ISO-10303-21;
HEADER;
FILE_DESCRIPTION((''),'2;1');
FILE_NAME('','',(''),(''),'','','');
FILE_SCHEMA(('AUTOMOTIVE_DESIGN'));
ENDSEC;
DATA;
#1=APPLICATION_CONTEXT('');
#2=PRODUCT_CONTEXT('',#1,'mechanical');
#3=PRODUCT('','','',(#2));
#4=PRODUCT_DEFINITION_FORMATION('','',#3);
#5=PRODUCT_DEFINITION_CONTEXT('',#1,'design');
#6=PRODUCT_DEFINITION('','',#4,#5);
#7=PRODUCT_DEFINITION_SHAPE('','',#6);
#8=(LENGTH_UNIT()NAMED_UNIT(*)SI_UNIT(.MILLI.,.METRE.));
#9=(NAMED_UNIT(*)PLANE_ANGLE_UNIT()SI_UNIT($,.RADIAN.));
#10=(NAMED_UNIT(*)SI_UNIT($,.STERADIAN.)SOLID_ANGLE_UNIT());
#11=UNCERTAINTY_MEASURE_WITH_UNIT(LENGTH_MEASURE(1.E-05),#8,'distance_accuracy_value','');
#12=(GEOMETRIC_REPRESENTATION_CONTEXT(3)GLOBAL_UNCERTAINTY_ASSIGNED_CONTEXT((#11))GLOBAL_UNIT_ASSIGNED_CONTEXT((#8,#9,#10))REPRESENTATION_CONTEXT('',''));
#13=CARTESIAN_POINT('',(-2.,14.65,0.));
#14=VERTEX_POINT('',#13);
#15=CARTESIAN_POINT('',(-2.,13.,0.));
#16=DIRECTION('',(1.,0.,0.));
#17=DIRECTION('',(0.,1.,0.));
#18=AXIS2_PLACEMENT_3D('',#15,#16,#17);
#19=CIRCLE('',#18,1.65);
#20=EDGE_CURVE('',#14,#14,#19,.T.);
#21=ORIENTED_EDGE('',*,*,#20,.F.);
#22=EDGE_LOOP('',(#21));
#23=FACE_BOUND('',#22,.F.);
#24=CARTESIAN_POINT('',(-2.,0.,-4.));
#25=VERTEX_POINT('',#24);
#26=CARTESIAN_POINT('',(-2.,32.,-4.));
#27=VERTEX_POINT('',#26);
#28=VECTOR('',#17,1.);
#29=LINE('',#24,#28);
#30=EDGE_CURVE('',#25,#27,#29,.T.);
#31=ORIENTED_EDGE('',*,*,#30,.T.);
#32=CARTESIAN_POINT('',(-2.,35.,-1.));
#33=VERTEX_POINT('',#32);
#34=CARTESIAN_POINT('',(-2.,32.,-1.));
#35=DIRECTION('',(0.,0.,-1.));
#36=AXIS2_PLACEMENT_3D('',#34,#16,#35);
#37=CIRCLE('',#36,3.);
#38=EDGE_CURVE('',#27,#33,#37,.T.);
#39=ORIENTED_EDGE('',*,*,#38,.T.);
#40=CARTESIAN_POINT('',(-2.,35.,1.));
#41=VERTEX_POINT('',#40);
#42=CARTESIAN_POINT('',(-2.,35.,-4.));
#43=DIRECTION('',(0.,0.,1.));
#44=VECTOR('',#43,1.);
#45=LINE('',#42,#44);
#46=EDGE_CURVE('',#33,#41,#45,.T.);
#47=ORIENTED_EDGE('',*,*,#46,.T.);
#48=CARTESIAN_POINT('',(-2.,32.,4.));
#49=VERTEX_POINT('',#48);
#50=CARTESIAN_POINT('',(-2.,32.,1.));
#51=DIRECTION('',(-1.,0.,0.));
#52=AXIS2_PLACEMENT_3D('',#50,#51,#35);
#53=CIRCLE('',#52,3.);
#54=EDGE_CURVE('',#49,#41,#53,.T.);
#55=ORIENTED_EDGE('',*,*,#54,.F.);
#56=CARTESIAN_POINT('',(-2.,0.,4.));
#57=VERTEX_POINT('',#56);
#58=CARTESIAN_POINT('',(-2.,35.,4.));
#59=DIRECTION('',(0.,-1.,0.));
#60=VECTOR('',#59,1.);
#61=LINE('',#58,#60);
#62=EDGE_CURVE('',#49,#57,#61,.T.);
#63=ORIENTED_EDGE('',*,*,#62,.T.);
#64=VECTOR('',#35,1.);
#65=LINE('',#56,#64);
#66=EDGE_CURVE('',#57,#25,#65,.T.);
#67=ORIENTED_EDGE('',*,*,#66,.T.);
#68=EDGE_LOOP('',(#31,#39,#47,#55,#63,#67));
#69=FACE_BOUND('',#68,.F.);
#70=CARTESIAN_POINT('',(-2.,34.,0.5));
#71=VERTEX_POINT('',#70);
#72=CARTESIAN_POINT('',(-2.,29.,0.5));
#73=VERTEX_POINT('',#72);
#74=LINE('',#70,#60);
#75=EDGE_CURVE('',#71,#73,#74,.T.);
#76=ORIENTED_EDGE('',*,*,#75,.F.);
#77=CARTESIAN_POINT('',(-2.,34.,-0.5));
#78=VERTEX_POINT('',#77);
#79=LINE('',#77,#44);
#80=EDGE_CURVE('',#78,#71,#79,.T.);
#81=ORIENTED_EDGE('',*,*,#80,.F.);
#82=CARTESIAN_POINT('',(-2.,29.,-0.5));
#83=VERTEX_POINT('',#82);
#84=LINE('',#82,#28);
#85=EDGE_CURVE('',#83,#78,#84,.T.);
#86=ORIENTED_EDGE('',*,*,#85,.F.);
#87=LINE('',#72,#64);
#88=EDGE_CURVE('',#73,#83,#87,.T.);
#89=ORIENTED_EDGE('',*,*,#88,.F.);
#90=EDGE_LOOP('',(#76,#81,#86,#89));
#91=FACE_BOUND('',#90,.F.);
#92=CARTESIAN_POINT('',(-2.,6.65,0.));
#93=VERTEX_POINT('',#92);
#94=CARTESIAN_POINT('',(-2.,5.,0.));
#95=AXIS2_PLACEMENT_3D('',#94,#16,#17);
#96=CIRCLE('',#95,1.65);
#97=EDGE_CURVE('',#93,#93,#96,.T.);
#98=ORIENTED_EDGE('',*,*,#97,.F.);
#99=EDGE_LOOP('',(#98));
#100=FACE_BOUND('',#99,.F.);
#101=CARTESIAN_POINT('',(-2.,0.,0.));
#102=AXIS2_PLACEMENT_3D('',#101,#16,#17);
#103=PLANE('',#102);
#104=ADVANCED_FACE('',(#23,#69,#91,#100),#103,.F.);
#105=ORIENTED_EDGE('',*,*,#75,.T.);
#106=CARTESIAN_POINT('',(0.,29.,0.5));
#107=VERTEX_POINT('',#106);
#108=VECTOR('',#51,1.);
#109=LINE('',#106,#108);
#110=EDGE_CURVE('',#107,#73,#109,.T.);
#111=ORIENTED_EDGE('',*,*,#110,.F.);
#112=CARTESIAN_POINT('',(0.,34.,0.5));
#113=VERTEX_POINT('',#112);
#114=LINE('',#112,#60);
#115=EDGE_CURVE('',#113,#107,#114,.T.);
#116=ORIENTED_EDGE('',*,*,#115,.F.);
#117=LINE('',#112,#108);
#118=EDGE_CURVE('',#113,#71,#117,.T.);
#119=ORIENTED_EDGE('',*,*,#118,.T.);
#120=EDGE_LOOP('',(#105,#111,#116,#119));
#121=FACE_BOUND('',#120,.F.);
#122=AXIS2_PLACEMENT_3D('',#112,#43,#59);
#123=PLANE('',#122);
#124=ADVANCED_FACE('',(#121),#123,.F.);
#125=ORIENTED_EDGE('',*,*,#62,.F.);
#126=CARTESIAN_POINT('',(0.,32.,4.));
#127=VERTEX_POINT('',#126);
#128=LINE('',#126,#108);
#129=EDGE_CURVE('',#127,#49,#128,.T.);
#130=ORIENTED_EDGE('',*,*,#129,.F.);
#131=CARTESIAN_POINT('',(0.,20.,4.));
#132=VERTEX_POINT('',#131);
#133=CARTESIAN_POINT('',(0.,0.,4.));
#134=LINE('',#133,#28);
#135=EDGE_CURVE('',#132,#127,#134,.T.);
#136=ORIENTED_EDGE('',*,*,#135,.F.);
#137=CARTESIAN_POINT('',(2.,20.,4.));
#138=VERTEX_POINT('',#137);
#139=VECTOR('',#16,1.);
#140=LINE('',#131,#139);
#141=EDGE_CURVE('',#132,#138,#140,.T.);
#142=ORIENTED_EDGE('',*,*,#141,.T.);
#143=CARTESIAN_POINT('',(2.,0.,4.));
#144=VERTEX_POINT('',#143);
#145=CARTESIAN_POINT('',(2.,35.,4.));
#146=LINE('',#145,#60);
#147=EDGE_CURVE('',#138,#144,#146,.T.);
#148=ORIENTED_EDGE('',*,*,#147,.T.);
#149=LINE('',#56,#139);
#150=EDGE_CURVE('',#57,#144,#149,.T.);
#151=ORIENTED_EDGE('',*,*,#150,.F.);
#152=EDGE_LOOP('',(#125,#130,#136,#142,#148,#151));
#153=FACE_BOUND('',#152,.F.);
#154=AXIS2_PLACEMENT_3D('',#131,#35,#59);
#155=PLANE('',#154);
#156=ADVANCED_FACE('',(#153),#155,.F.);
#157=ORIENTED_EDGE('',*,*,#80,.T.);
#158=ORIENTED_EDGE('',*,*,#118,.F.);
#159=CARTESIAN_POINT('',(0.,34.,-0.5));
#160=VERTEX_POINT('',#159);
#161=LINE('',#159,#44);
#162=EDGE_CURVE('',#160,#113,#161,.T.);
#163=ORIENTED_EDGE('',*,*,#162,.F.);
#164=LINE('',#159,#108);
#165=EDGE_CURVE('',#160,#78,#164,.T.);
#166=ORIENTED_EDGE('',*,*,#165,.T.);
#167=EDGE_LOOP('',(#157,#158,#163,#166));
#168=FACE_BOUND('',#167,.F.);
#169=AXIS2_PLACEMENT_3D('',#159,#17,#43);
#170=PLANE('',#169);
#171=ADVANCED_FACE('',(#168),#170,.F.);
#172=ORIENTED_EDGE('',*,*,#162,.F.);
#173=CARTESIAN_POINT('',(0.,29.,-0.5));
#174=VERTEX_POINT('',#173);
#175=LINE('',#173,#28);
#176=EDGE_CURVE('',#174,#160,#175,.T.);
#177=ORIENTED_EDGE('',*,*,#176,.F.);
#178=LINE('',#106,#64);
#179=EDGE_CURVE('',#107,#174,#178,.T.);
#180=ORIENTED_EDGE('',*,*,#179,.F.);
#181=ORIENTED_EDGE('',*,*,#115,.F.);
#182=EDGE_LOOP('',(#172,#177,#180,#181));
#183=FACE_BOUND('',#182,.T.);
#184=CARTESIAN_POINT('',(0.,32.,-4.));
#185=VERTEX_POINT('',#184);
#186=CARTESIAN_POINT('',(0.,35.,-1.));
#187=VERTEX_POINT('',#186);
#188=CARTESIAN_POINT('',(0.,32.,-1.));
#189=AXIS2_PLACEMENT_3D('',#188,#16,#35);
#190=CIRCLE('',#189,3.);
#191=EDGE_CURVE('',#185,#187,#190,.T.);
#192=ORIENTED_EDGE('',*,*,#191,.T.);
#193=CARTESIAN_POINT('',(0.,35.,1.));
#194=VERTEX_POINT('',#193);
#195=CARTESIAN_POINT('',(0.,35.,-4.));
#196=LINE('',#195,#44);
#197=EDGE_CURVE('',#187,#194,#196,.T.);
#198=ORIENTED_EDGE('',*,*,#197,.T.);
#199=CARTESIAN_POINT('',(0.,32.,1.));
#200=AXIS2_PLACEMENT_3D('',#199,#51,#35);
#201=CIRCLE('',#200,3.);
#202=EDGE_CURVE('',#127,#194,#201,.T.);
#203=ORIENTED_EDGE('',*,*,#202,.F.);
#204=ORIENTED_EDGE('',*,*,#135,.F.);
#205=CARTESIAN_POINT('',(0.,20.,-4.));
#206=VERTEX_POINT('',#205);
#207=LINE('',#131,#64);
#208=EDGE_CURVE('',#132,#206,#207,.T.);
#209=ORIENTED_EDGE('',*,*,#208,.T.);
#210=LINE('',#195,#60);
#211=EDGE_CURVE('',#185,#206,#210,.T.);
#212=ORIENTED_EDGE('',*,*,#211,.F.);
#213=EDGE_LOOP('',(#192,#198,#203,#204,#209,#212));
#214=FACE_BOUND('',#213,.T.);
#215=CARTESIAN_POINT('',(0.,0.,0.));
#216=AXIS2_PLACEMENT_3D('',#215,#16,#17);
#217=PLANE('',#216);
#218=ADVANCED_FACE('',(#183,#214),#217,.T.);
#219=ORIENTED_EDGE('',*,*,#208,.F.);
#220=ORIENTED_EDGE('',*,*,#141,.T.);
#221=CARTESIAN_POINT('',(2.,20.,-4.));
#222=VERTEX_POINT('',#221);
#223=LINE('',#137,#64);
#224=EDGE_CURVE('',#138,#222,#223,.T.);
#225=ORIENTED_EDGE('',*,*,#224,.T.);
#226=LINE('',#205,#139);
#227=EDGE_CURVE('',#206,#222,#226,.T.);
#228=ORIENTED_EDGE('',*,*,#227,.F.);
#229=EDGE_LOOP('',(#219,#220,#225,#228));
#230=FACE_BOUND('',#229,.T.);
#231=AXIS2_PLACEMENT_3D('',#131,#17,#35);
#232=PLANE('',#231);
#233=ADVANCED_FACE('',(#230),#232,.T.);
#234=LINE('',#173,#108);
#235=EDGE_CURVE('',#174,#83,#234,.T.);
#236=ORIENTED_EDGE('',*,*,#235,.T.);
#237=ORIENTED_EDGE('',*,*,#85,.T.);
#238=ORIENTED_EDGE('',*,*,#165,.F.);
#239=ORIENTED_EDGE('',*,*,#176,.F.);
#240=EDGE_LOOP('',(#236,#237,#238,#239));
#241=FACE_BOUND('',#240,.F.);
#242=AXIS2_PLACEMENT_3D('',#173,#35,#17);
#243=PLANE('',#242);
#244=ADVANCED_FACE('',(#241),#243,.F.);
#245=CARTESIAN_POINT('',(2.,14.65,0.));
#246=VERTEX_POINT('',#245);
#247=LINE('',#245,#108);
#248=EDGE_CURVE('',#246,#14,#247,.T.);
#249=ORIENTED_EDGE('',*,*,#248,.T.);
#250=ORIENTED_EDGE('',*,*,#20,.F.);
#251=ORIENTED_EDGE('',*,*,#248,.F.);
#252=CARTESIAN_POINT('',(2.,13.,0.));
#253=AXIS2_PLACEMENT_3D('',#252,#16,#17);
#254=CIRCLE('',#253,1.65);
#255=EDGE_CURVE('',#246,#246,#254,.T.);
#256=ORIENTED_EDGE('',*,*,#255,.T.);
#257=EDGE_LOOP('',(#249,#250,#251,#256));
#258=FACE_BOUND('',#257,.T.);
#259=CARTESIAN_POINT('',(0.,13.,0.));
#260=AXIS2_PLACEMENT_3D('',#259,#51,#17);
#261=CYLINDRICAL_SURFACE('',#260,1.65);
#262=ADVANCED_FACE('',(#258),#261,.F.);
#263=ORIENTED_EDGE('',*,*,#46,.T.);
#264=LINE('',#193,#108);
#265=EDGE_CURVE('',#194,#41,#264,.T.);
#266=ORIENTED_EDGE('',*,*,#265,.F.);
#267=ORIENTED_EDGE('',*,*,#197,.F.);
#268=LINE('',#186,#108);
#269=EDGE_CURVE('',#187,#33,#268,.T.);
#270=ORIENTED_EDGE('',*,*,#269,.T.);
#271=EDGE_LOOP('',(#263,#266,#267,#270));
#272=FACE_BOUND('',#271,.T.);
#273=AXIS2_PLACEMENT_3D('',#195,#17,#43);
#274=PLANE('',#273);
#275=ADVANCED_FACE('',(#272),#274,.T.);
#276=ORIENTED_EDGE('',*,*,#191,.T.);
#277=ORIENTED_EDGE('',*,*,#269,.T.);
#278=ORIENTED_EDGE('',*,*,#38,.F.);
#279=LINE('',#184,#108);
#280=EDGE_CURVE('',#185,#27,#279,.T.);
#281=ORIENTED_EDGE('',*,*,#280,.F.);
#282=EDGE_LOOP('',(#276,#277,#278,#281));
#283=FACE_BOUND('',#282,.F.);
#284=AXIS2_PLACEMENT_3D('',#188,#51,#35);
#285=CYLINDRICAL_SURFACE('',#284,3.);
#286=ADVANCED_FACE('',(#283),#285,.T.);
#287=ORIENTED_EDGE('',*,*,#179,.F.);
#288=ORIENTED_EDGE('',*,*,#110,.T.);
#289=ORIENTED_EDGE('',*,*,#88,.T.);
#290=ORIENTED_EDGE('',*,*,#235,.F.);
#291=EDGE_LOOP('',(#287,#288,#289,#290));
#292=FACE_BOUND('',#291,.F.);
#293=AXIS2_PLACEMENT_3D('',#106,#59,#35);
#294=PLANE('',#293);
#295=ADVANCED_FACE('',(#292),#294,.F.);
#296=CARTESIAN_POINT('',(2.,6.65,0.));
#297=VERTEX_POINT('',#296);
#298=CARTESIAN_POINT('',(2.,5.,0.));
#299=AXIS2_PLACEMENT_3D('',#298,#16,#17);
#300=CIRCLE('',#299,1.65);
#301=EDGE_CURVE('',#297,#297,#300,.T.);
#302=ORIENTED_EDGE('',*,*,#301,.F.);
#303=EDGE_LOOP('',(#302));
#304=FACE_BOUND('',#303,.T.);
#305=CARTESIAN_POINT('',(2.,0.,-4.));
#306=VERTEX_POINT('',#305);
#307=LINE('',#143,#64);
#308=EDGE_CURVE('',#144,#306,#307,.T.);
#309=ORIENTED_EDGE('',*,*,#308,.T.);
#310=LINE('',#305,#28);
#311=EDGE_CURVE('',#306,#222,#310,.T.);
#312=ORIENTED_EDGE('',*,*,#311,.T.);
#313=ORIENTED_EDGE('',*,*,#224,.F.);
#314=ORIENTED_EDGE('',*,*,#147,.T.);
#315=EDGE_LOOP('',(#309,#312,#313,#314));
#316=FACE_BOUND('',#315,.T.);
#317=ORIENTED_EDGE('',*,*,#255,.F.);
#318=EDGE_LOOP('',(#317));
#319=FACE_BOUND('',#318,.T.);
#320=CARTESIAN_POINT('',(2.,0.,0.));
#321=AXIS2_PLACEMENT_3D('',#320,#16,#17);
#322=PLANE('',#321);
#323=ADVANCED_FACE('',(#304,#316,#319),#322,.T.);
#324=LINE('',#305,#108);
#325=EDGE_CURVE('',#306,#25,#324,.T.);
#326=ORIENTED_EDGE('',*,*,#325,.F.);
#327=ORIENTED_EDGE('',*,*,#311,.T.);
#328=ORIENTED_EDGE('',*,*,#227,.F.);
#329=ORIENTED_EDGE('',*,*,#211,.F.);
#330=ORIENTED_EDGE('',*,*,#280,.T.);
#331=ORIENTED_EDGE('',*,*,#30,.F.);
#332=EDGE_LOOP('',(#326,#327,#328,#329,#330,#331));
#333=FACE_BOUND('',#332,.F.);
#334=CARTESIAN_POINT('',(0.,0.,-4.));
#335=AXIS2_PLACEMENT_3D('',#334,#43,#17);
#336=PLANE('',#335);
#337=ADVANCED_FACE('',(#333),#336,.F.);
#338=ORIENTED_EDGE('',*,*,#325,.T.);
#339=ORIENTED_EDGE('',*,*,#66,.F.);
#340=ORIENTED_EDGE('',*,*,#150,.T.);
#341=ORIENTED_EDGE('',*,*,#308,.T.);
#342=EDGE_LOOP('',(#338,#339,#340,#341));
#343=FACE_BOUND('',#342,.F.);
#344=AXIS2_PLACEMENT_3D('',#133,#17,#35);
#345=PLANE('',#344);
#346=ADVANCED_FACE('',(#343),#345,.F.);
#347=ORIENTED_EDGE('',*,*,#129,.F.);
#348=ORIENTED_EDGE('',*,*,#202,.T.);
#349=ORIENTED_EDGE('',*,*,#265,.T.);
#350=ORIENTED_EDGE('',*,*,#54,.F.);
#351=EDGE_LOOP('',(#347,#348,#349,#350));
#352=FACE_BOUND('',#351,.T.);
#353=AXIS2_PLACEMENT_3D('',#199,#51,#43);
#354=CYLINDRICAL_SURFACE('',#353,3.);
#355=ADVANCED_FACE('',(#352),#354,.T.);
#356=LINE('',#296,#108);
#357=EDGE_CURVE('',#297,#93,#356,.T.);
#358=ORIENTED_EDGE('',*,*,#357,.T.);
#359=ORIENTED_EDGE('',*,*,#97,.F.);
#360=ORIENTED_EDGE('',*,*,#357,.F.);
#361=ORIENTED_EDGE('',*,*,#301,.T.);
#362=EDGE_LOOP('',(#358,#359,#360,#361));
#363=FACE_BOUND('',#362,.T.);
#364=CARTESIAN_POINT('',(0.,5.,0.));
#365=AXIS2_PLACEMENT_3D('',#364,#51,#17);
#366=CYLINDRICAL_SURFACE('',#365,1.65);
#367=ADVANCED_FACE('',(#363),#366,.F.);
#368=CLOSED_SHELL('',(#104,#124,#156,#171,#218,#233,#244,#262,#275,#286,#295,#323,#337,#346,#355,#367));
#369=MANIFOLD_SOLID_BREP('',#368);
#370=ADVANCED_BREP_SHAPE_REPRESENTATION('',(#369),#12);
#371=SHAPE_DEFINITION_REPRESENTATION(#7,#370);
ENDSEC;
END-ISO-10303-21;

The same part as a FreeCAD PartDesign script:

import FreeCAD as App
import Part
import Sketcher


def edges_at(feature, points):
    """Names of the edges that pass closest to the given points."""
    edges = feature.Shape.Edges
    near = lambda p: min(range(len(edges)), key=lambda i: edges[i].distToShape(Part.Vertex(*p))[0])
    return sorted({f"Edge{near(p) + 1}" for p in points})


def add_polygon(sketch, points):
    """Adds a closed chain of lines whose ends are joined by coincident constraints."""
    first, n = sketch.GeometryCount, len(points)
    for a, b in zip(points, points[1:] + points[:1]):
        sketch.addGeometry(Part.LineSegment(App.Vector(*a, 0), App.Vector(*b, 0)), False)
    for i in range(n):
        sketch.addConstraint(Sketcher.Constraint("Coincident", first + i, 2, first + (i + 1) % n, 1))

doc = App.newDocument("Part")
body = doc.addObject("PartDesign::Body", "Body")

# Sketch on YZ plane
sketch1 = body.newObject("Sketcher::SketchObject", "Sketch")
sketch1.AttachmentSupport = (doc.getObject("YZ_Plane"), [""])
sketch1.MapMode = "FlatFace"
add_polygon(sketch1, [(20, -4), (20, 4), (0, 4), (0, -4)])  # lines 0-3
sketch1.addGeometry(Part.Circle(App.Vector(5, 0, 0), App.Vector(0, 0, 1), 1.6), False)  # 4
sketch1.addGeometry(Part.Circle(App.Vector(13, 0, 0), App.Vector(0, 0, 1), 1.6), False)  # 5
sketch1.addConstraint(Sketcher.Constraint("Vertical", 0))
sketch1.addConstraint(Sketcher.Constraint("Horizontal", 1))
sketch1.addConstraint(Sketcher.Constraint("Vertical", 2))
sketch1.addConstraint(Sketcher.Constraint("Horizontal", 3))
sketch1.addConstraint(Sketcher.Constraint("Equal", 4, 5))
sketch1.addConstraint(Sketcher.Constraint("Symmetric", 1, 2, 2, 2, -1, 1))
sketch1.addConstraint(Sketcher.Constraint("PointOnObject", 4, 3, -1))
sketch1.addConstraint(Sketcher.Constraint("PointOnObject", 5, 3, -1))
sketch1.addConstraint(Sketcher.Constraint("Diameter", 4, 3.3))
sketch1.addConstraint(Sketcher.Constraint("DistanceX", 1, 2, 1, 1, 20.0))
sketch1.addConstraint(Sketcher.Constraint("DistanceY", 0, 1, 0, 2, 8.0))
sketch1.addConstraint(Sketcher.Constraint("DistanceX", -1, 1, 4, 3, 5.0))
sketch1.addConstraint(Sketcher.Constraint("DistanceX", 4, 3, 5, 3, 8.0))
pad1 = body.newObject("PartDesign::Pad", "Pad")
pad1.Profile = sketch1
pad1.Length = 2

# Sketch on YZ plane
sketch2 = body.newObject("Sketcher::SketchObject", "Sketch001")
sketch2.AttachmentSupport = (doc.getObject("YZ_Plane"), [""])
sketch2.MapMode = "FlatFace"
add_polygon(sketch2, [(35, -4), (35, 4), (0, 4), (0, -4)])  # lines 0-3
add_polygon(sketch2, [(29, 0.5), (34, 0.5), (34, -0.5), (29, -0.5)])  # lines 4-7
sketch2.addGeometry(Part.Circle(App.Vector(13, 0, 0), App.Vector(0, 0, 1), 1.6), False)  # 8
sketch2.addGeometry(Part.Circle(App.Vector(5, 0, 0), App.Vector(0, 0, 1), 1.6), False)  # 9
sketch2.addConstraint(Sketcher.Constraint("Vertical", 0))
sketch2.addConstraint(Sketcher.Constraint("Horizontal", 1))
sketch2.addConstraint(Sketcher.Constraint("Vertical", 2))
sketch2.addConstraint(Sketcher.Constraint("Horizontal", 3))
sketch2.addConstraint(Sketcher.Constraint("Horizontal", 4))
sketch2.addConstraint(Sketcher.Constraint("Vertical", 5))
sketch2.addConstraint(Sketcher.Constraint("Horizontal", 6))
sketch2.addConstraint(Sketcher.Constraint("Vertical", 7))
sketch2.addConstraint(Sketcher.Constraint("Equal", 8, 9))
sketch2.addConstraint(Sketcher.Constraint("Symmetric", 1, 2, 2, 2, -1, 1))
sketch2.addConstraint(Sketcher.Constraint("PointOnObject", 8, 3, -1))
sketch2.addConstraint(Sketcher.Constraint("PointOnObject", 9, 3, -1))
sketch2.addConstraint(Sketcher.Constraint("Diameter", 8, 3.3))
sketch2.addConstraint(Sketcher.Constraint("DistanceX", 4, 1, 4, 2, 5.0))
sketch2.addConstraint(Sketcher.Constraint("DistanceY", 0, 1, 0, 2, 8.0))
sketch2.addConstraint(Sketcher.Constraint("DistanceY", 5, 2, 5, 1, 1.0))
sketch2.addConstraint(Sketcher.Constraint("DistanceX", -1, 1, 9, 3, 5.0))
sketch2.addConstraint(Sketcher.Constraint("DistanceX", 9, 3, 8, 3, 8.0))
sketch2.addConstraint(Sketcher.Constraint("DistanceX", 4, 2, 0, 2, 1.0))
sketch2.addConstraint(Sketcher.Constraint("DistanceX", 1, 2, 1, 1, 35.0))
sketch2.addConstraint(Sketcher.Constraint("DistanceY", -1, 1, 4, 2, 0.5))
pad2 = body.newObject("PartDesign::Pad", "Pad001")
pad2.Profile = sketch2
pad2.Length = 2
pad2.Reversed = True
doc.recompute()

fillet = body.newObject("PartDesign::Fillet", "Fillet")
fillet.Base = (pad2, edges_at(pad2, [(-1, 35, 4), (-1, 35, -4)]))
fillet.Radius = 3

doc.recompute()
